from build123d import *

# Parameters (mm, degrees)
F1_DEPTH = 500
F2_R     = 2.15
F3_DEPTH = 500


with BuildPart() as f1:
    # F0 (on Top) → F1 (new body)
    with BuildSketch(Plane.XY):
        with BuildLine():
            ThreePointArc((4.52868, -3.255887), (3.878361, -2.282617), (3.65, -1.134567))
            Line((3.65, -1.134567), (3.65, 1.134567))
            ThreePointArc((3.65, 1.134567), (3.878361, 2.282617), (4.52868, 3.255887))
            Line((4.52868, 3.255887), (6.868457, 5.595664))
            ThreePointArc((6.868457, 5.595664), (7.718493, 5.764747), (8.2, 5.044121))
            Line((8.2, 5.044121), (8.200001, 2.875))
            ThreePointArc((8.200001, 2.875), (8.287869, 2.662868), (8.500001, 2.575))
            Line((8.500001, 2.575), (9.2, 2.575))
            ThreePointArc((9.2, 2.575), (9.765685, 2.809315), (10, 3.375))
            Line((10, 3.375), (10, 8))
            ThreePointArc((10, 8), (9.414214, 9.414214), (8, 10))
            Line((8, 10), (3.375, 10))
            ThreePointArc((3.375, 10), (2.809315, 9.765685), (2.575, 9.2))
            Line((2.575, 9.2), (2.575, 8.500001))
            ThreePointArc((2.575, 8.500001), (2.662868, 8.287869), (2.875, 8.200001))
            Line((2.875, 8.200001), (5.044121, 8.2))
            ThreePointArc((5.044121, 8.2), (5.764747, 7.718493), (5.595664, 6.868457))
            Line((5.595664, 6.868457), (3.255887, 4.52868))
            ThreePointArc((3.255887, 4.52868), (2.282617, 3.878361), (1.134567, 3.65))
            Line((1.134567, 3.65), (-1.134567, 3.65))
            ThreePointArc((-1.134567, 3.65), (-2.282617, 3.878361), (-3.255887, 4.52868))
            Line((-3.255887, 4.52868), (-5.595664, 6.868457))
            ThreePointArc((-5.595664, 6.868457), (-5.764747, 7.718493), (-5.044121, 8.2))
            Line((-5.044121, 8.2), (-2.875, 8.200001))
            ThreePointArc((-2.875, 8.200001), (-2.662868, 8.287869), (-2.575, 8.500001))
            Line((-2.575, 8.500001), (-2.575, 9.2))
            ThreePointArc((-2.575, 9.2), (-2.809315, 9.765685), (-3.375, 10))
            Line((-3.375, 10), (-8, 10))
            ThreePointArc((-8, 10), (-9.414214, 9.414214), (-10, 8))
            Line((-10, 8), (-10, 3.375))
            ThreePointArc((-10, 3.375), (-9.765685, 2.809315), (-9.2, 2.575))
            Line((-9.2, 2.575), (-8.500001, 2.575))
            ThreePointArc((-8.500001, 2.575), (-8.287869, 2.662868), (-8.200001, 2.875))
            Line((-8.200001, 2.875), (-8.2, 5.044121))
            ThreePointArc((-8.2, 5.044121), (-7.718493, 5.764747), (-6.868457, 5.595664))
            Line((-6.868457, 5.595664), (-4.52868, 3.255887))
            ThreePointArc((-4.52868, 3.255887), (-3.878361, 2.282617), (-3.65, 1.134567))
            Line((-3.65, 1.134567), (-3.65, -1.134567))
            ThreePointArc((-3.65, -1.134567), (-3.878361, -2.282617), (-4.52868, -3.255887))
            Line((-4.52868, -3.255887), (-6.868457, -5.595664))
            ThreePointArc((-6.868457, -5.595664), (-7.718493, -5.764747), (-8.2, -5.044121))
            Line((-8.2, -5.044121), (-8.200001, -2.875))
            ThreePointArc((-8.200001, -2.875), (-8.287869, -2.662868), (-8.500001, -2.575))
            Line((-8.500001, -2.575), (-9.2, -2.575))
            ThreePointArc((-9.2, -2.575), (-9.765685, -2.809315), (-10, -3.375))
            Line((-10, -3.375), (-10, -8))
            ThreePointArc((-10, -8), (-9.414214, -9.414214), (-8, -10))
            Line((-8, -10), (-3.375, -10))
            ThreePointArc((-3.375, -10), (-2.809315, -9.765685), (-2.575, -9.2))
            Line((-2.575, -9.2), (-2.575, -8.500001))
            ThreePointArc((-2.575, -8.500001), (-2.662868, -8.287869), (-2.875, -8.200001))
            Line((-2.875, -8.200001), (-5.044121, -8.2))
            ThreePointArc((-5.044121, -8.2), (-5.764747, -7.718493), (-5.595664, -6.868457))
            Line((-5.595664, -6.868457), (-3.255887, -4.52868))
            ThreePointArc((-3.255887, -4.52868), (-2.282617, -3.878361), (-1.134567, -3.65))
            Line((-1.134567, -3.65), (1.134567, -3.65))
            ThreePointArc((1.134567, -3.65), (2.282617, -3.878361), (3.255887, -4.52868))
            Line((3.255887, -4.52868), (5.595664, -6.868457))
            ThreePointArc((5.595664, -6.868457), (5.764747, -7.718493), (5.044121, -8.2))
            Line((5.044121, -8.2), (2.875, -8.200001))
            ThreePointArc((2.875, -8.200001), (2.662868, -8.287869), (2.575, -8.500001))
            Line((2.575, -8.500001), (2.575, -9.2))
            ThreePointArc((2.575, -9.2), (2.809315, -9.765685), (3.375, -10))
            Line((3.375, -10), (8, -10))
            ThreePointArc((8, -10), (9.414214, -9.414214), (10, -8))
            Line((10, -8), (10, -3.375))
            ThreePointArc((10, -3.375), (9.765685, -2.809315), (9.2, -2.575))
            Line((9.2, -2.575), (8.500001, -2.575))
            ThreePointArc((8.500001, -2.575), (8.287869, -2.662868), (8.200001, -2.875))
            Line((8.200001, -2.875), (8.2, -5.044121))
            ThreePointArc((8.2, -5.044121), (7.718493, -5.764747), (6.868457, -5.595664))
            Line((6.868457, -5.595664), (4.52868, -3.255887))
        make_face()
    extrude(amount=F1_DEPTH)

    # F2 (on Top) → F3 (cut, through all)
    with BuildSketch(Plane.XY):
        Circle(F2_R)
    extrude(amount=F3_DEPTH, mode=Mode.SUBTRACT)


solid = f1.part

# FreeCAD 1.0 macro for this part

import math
import FreeCAD as App
import Part
import Sketcher
Q = App.Units.Quantity

doc = App.newDocument("Part")
body = doc.addObject("PartDesign::Body", "Body")

sketch1 = body.newObject("Sketcher::SketchObject", "Sketch")
sketch1.AttachmentSupport = (doc.getObject("XY_Plane"), [""])
sketch1.MapMode = "FlatFace"
sketch1.addGeometry([
    Part.ArcOfCircle(Part.Circle(App.Vector(6.649994, -1.134569, 0), App.Vector(0, 0, 1), 2.999994), math.radians(179.999963), math.radians(225.000059)),
    Part.LineSegment(App.Vector(3.65, -1.134567, 0), App.Vector(3.65, 1.134567, 0)),
    Part.ArcOfCircle(Part.Circle(App.Vector(6.649994, 1.134569, 0), App.Vector(0, 0, 1), 2.999994), math.radians(134.999941), math.radians(180.000037)),
    Part.LineSegment(App.Vector(4.52868, 3.255887, 0), App.Vector(6.868457, 5.595664, 0)),
    Part.ArcOfCircle(Part.Circle(App.Vector(7.42, 5.044121, 0), App.Vector(0, 0, 1), 0.78), math.radians(-0.000009), math.radians(135.000022)),
    Part.LineSegment(App.Vector(8.2, 5.044121, 0), App.Vector(8.200001, 2.875, 0)),
    Part.ArcOfCircle(Part.Circle(App.Vector(8.500001, 2.875, 0), App.Vector(0, 0, 1), 0.3), math.radians(-179.999978), math.radians(-90.000022)),
    Part.LineSegment(App.Vector(8.500001, 2.575, 0), App.Vector(9.2, 2.575, 0)),
    Part.ArcOfCircle(Part.Circle(App.Vector(9.199999, 3.375001, 0), App.Vector(0, 0, 1), 0.800001), math.radians(-89.999896), math.radians(-0.000104)),
    Part.LineSegment(App.Vector(10, 3.375, 0), App.Vector(10, 8, 0)),
    Part.ArcOfCircle(Part.Circle(App.Vector(8.000001, 8.000001, 0), App.Vector(0, 0, 1), 1.999999), math.radians(-0.000043), math.radians(90.000043)),
    Part.LineSegment(App.Vector(8, 10, 0), App.Vector(3.375, 10, 0)),
    Part.ArcOfCircle(Part.Circle(App.Vector(3.375001, 9.199999, 0), App.Vector(0, 0, 1), 0.800001), math.radians(90.000104), math.radians(179.999896)),
    Part.LineSegment(App.Vector(2.575, 9.2, 0), App.Vector(2.575, 8.500001, 0)),
    Part.ArcOfCircle(Part.Circle(App.Vector(2.875, 8.500001, 0), App.Vector(0, 0, 1), 0.3), math.radians(-179.999978), math.radians(-90.000022)),
    Part.LineSegment(App.Vector(2.875, 8.200001, 0), App.Vector(5.044121, 8.2, 0)),
    Part.ArcOfCircle(Part.Circle(App.Vector(5.044121, 7.42, 0), App.Vector(0, 0, 1), 0.78), math.radians(-45.000022), math.radians(90.000009)),
    Part.LineSegment(App.Vector(5.595664, 6.868457, 0), App.Vector(3.255887, 4.52868, 0)),
    Part.ArcOfCircle(Part.Circle(App.Vector(1.134569, 6.649994, 0), App.Vector(0, 0, 1), 2.999994), math.radians(-90.000037), math.radians(-44.999941)),
    Part.LineSegment(App.Vector(1.134567, 3.65, 0), App.Vector(-1.134567, 3.65, 0)),
    Part.ArcOfCircle(Part.Circle(App.Vector(-1.134569, 6.649994, 0), App.Vector(0, 0, 1), 2.999994), math.radians(-135.000059), math.radians(-89.999963)),
    Part.LineSegment(App.Vector(-3.255887, 4.52868, 0), App.Vector(-5.595664, 6.868457, 0)),
    Part.ArcOfCircle(Part.Circle(App.Vector(-5.044121, 7.42, 0), App.Vector(0, 0, 1), 0.78), math.radians(89.999991), math.radians(225.000022)),
    Part.LineSegment(App.Vector(-5.044121, 8.2, 0), App.Vector(-2.875, 8.200001, 0)),
    Part.ArcOfCircle(Part.Circle(App.Vector(-2.875, 8.500001, 0), App.Vector(0, 0, 1), 0.3), math.radians(-89.999978), math.radians(-0.000022)),
    Part.LineSegment(App.Vector(-2.575, 8.500001, 0), App.Vector(-2.575, 9.2, 0)),
    Part.ArcOfCircle(Part.Circle(App.Vector(-3.375001, 9.199999, 0), App.Vector(0, 0, 1), 0.800001), math.radians(0.000104), math.radians(89.999896)),
    Part.LineSegment(App.Vector(-3.375, 10, 0), App.Vector(-8, 10, 0)),
    Part.ArcOfCircle(Part.Circle(App.Vector(-8.000001, 8.000001, 0), App.Vector(0, 0, 1), 1.999999), math.radians(89.999957), math.radians(180.000043)),
    Part.LineSegment(App.Vector(-10, 8, 0), App.Vector(-10, 3.375, 0)),
    Part.ArcOfCircle(Part.Circle(App.Vector(-9.199999, 3.375001, 0), App.Vector(0, 0, 1), 0.800001), math.radians(-179.999896), math.radians(-90.000104)),
    Part.LineSegment(App.Vector(-9.2, 2.575, 0), App.Vector(-8.500001, 2.575, 0)),
    Part.ArcOfCircle(Part.Circle(App.Vector(-8.500001, 2.875, 0), App.Vector(0, 0, 1), 0.3), math.radians(-89.999978), math.radians(-0.000022)),
    Part.LineSegment(App.Vector(-8.200001, 2.875, 0), App.Vector(-8.2, 5.044121, 0)),
    Part.ArcOfCircle(Part.Circle(App.Vector(-7.42, 5.044121, 0), App.Vector(0, 0, 1), 0.78), math.radians(44.999978), math.radians(180.000009)),
    Part.LineSegment(App.Vector(-6.868457, 5.595664, 0), App.Vector(-4.52868, 3.255887, 0)),
    Part.ArcOfCircle(Part.Circle(App.Vector(-6.649994, 1.134569, 0), App.Vector(0, 0, 1), 2.999994), math.radians(-0.000037), math.radians(45.000059)),
    Part.LineSegment(App.Vector(-3.65, 1.134567, 0), App.Vector(-3.65, -1.134567, 0)),
    Part.ArcOfCircle(Part.Circle(App.Vector(-6.649994, -1.134569, 0), App.Vector(0, 0, 1), 2.999994), math.radians(-45.000059), math.radians(0.000037)),
    Part.LineSegment(App.Vector(-4.52868, -3.255887, 0), App.Vector(-6.868457, -5.595664, 0)),
    Part.ArcOfCircle(Part.Circle(App.Vector(-7.42, -5.044121, 0), App.Vector(0, 0, 1), 0.78), math.radians(179.999991), math.radians(315.000022)),
    Part.LineSegment(App.Vector(-8.2, -5.044121, 0), App.Vector(-8.200001, -2.875, 0)),
    Part.ArcOfCircle(Part.Circle(App.Vector(-8.500001, -2.875, 0), App.Vector(0, 0, 1), 0.3), math.radians(0.000022), math.radians(89.999978)),
    Part.LineSegment(App.Vector(-8.500001, -2.575, 0), App.Vector(-9.2, -2.575, 0)),
    Part.ArcOfCircle(Part.Circle(App.Vector(-9.199999, -3.375001, 0), App.Vector(0, 0, 1), 0.800001), math.radians(90.000104), math.radians(179.999896)),
    Part.LineSegment(App.Vector(-10, -3.375, 0), App.Vector(-10, -8, 0)),
    Part.ArcOfCircle(Part.Circle(App.Vector(-8.000001, -8.000001, 0), App.Vector(0, 0, 1), 1.999999), math.radians(179.999957), math.radians(270.000043)),
    Part.LineSegment(App.Vector(-8, -10, 0), App.Vector(-3.375, -10, 0)),
    Part.ArcOfCircle(Part.Circle(App.Vector(-3.375001, -9.199999, 0), App.Vector(0, 0, 1), 0.800001), math.radians(-89.999896), math.radians(-0.000104)),
    Part.LineSegment(App.Vector(-2.575, -9.2, 0), App.Vector(-2.575, -8.500001, 0)),
    Part.ArcOfCircle(Part.Circle(App.Vector(-2.875, -8.500001, 0), App.Vector(0, 0, 1), 0.3), math.radians(0.000022), math.radians(89.999978)),
    Part.LineSegment(App.Vector(-2.875, -8.200001, 0), App.Vector(-5.044121, -8.2, 0)),
    Part.ArcOfCircle(Part.Circle(App.Vector(-5.044121, -7.42, 0), App.Vector(0, 0, 1), 0.78), math.radians(134.999978), math.radians(270.000009)),
    Part.LineSegment(App.Vector(-5.595664, -6.868457, 0), App.Vector(-3.255887, -4.52868, 0)),
    Part.ArcOfCircle(Part.Circle(App.Vector(-1.134569, -6.649994, 0), App.Vector(0, 0, 1), 2.999994), math.radians(89.999963), math.radians(135.000059)),
    Part.LineSegment(App.Vector(-1.134567, -3.65, 0), App.Vector(1.134567, -3.65, 0)),
    Part.ArcOfCircle(Part.Circle(App.Vector(1.134569, -6.649994, 0), App.Vector(0, 0, 1), 2.999994), math.radians(44.999941), math.radians(90.000037)),
    Part.LineSegment(App.Vector(3.255887, -4.52868, 0), App.Vector(5.595664, -6.868457, 0)),
    Part.ArcOfCircle(Part.Circle(App.Vector(5.044121, -7.42, 0), App.Vector(0, 0, 1), 0.78), math.radians(-90.000009), math.radians(45.000022)),
    Part.LineSegment(App.Vector(5.044121, -8.2, 0), App.Vector(2.875, -8.200001, 0)),
    Part.ArcOfCircle(Part.Circle(App.Vector(2.875, -8.500001, 0), App.Vector(0, 0, 1), 0.3), math.radians(90.000022), math.radians(179.999978)),
    Part.LineSegment(App.Vector(2.575, -8.500001, 0), App.Vector(2.575, -9.2, 0)),
    Part.ArcOfCircle(Part.Circle(App.Vector(3.375001, -9.199999, 0), App.Vector(0, 0, 1), 0.800001), math.radians(-179.999896), math.radians(-90.000104)),
    Part.LineSegment(App.Vector(3.375, -10, 0), App.Vector(8, -10, 0)),
    Part.ArcOfCircle(Part.Circle(App.Vector(8.000001, -8.000001, 0), App.Vector(0, 0, 1), 1.999999), math.radians(-90.000043), math.radians(0.000043)),
    Part.LineSegment(App.Vector(10, -8, 0), App.Vector(10, -3.375, 0)),
    Part.ArcOfCircle(Part.Circle(App.Vector(9.199999, -3.375001, 0), App.Vector(0, 0, 1), 0.800001), math.radians(0.000104), math.radians(89.999896)),
    Part.LineSegment(App.Vector(9.2, -2.575, 0), App.Vector(8.500001, -2.575, 0)),
    Part.ArcOfCircle(Part.Circle(App.Vector(8.500001, -2.875, 0), App.Vector(0, 0, 1), 0.3), math.radians(90.000022), math.radians(179.999978)),
    Part.LineSegment(App.Vector(8.200001, -2.875, 0), App.Vector(8.2, -5.044121, 0)),
    Part.ArcOfCircle(Part.Circle(App.Vector(7.42, -5.044121, 0), App.Vector(0, 0, 1), 0.78), math.radians(-135.000022), math.radians(0.000009)),
    Part.LineSegment(App.Vector(6.868457, -5.595664, 0), App.Vector(4.52868, -3.255887, 0)),
], False)
sketch1.addConstraint([
    Sketcher.Constraint("Tangent", 0, 1, 1, 1),
    Sketcher.Constraint("Tangent", 1, 2, 2, 2),
    Sketcher.Constraint("Tangent", 2, 1, 3, 1),
    Sketcher.Constraint("Tangent", 3, 2, 4, 2),
    Sketcher.Constraint("Tangent", 4, 1, 5, 1),
    Sketcher.Constraint("Tangent", 5, 2, 6, 1),
    Sketcher.Constraint("Tangent", 6, 2, 7, 1),
    Sketcher.Constraint("Tangent", 7, 2, 8, 1),
    Sketcher.Constraint("Tangent", 8, 2, 9, 1),
    Sketcher.Constraint("Tangent", 9, 2, 10, 1),
    Sketcher.Constraint("Tangent", 10, 2, 11, 1),
    Sketcher.Constraint("Tangent", 11, 2, 12, 1),
    Sketcher.Constraint("Tangent", 12, 2, 13, 1),
    Sketcher.Constraint("Tangent", 13, 2, 14, 1),
    Sketcher.Constraint("Tangent", 14, 2, 15, 1),
    Sketcher.Constraint("Tangent", 15, 2, 16, 2),
    Sketcher.Constraint("Tangent", 16, 1, 17, 1),
    Sketcher.Constraint("Tangent", 17, 2, 18, 2),
    Sketcher.Constraint("Tangent", 18, 1, 19, 1),
    Sketcher.Constraint("Tangent", 19, 2, 20, 2),
    Sketcher.Constraint("Tangent", 20, 1, 21, 1),
    Sketcher.Constraint("Tangent", 21, 2, 22, 2),
    Sketcher.Constraint("Tangent", 22, 1, 23, 1),
    Sketcher.Constraint("Tangent", 23, 2, 24, 1),
    Sketcher.Constraint("Tangent", 24, 2, 25, 1),
    Sketcher.Constraint("Tangent", 25, 2, 26, 1),
    Sketcher.Constraint("Tangent", 26, 2, 27, 1),
    Sketcher.Constraint("Tangent", 27, 2, 28, 1),
    Sketcher.Constraint("Tangent", 28, 2, 29, 1),
    Sketcher.Constraint("Tangent", 29, 2, 30, 1),
    Sketcher.Constraint("Tangent", 30, 2, 31, 1),
    Sketcher.Constraint("Tangent", 31, 2, 32, 1),
    Sketcher.Constraint("Tangent", 32, 2, 33, 1),
    Sketcher.Constraint("Tangent", 33, 2, 34, 2),
    Sketcher.Constraint("Tangent", 34, 1, 35, 1),
    Sketcher.Constraint("Tangent", 35, 2, 36, 2),
    Sketcher.Constraint("Tangent", 36, 1, 37, 1),
    Sketcher.Constraint("Tangent", 37, 2, 38, 2),
    Sketcher.Constraint("Tangent", 38, 1, 39, 1),
    Sketcher.Constraint("Tangent", 39, 2, 40, 2),
    Sketcher.Constraint("Tangent", 40, 1, 41, 1),
    Sketcher.Constraint("Tangent", 41, 2, 42, 1),
    Sketcher.Constraint("Tangent", 42, 2, 43, 1),
    Sketcher.Constraint("Tangent", 43, 2, 44, 1),
    Sketcher.Constraint("Tangent", 44, 2, 45, 1),
    Sketcher.Constraint("Tangent", 45, 2, 46, 1),
    Sketcher.Constraint("Tangent", 46, 2, 47, 1),
    Sketcher.Constraint("Tangent", 47, 2, 48, 1),
    Sketcher.Constraint("Tangent", 48, 2, 49, 1),
    Sketcher.Constraint("Tangent", 49, 2, 50, 1),
    Sketcher.Constraint("Tangent", 50, 2, 51, 1),
    Sketcher.Constraint("Tangent", 51, 2, 52, 2),
    Sketcher.Constraint("Tangent", 52, 1, 53, 1),
    Sketcher.Constraint("Tangent", 53, 2, 54, 2),
    Sketcher.Constraint("Tangent", 54, 1, 55, 1),
    Sketcher.Constraint("Tangent", 55, 2, 56, 2),
    Sketcher.Constraint("Tangent", 56, 1, 57, 1),
    Sketcher.Constraint("Tangent", 57, 2, 58, 2),
    Sketcher.Constraint("Tangent", 58, 1, 59, 1),
    Sketcher.Constraint("Tangent", 59, 2, 60, 1),
    Sketcher.Constraint("Tangent", 60, 2, 61, 1),
    Sketcher.Constraint("Tangent", 61, 2, 62, 1),
    Sketcher.Constraint("Tangent", 62, 2, 63, 1),
    Sketcher.Constraint("Tangent", 63, 2, 64, 1),
    Sketcher.Constraint("Tangent", 64, 2, 65, 1),
    Sketcher.Constraint("Tangent", 65, 2, 66, 1),
    Sketcher.Constraint("Tangent", 66, 2, 67, 1),
    Sketcher.Constraint("Tangent", 67, 2, 68, 1),
    Sketcher.Constraint("Tangent", 68, 2, 69, 1),
    Sketcher.Constraint("Tangent", 69, 2, 70, 2),
    Sketcher.Constraint("Tangent", 70, 1, 71, 1),
    Sketcher.Constraint("Tangent", 71, 2, 0, 2),
    Sketcher.Constraint("Vertical", 1),
    Sketcher.Constraint("Vertical", 5),
    Sketcher.Constraint("Horizontal", 7),
    Sketcher.Constraint("Vertical", 9),
    Sketcher.Constraint("Horizontal", 11),
    Sketcher.Constraint("Vertical", 13),
    Sketcher.Constraint("Horizontal", 15),
    Sketcher.Constraint("Horizontal", 19),
    Sketcher.Constraint("Horizontal", 23),
    Sketcher.Constraint("Vertical", 25),
    Sketcher.Constraint("Horizontal", 27),
    Sketcher.Constraint("Vertical", 29),
    Sketcher.Constraint("Horizontal", 31),
    Sketcher.Constraint("Vertical", 33),
    Sketcher.Constraint("Vertical", 37),
    Sketcher.Constraint("Vertical", 41),
    Sketcher.Constraint("Horizontal", 43),
    Sketcher.Constraint("Vertical", 45),
    Sketcher.Constraint("Horizontal", 47),
    Sketcher.Constraint("Vertical", 49),
    Sketcher.Constraint("Horizontal", 51),
    Sketcher.Constraint("Horizontal", 55),
    Sketcher.Constraint("Horizontal", 59),
    Sketcher.Constraint("Vertical", 61),
    Sketcher.Constraint("Horizontal", 63),
    Sketcher.Constraint("Vertical", 65),
    Sketcher.Constraint("Horizontal", 67),
    Sketcher.Constraint("Vertical", 69),
    Sketcher.Constraint("Equal", 0, 2),
    Sketcher.Constraint("Equal", 8, 12),
    Sketcher.Constraint("Equal", 6, 14),
    Sketcher.Constraint("Equal", 4, 16),
    Sketcher.Constraint("Equal", 2, 18),
    Sketcher.Constraint("Equal", 18, 20),
    Sketcher.Constraint("Equal", 16, 22),
    Sketcher.Constraint("Equal", 14, 24),
    Sketcher.Constraint("Equal", 12, 26),
    Sketcher.Constraint("Equal", 10, 28),
    Sketcher.Constraint("Equal", 26, 30),
    Sketcher.Constraint("Equal", 24, 32),
    Sketcher.Constraint("Equal", 22, 34),
    Sketcher.Constraint("Equal", 20, 36),
    Sketcher.Constraint("Equal", 36, 38),
    Sketcher.Constraint("Equal", 34, 40),
    Sketcher.Constraint("Equal", 32, 42),
    Sketcher.Constraint("Equal", 30, 44),
    Sketcher.Constraint("Equal", 28, 46),
    Sketcher.Constraint("Equal", 44, 48),
    Sketcher.Constraint("Equal", 42, 50),
    Sketcher.Constraint("Equal", 40, 52),
    Sketcher.Constraint("Equal", 38, 54),
    Sketcher.Constraint("Equal", 54, 56),
    Sketcher.Constraint("Equal", 52, 58),
    Sketcher.Constraint("Equal", 50, 60),
    Sketcher.Constraint("Equal", 48, 62),
    Sketcher.Constraint("Equal", 46, 64),
    Sketcher.Constraint("Equal", 62, 66),
    Sketcher.Constraint("Equal", 60, 68),
    Sketcher.Constraint("Equal", 58, 70),
    Sketcher.Constraint("Symmetric", 0, 3, 36, 3, -1, 1),
    Sketcher.Constraint("Symmetric", 4, 3, 40, 3, -1, 1),
    Sketcher.Constraint("Symmetric", 8, 3, 44, 3, -1, 1),
    Sketcher.Constraint("Symmetric", 12, 3, 48, 3, -1, 1),
    Sketcher.Constraint("Symmetric", 16, 3, 52, 3, -1, 1),
    Sketcher.Constraint("Symmetric", 18, 3, 54, 3, -1, 1),
    Sketcher.Constraint("Symmetric", 22, 3, 58, 3, -1, 1),
    Sketcher.Constraint("Symmetric", 26, 3, 62, 3, -1, 1),
    Sketcher.Constraint("Symmetric", 30, 3, 66, 3, -1, 1),
    Sketcher.Constraint("Symmetric", 34, 3, 70, 3, -1, 1),
    Sketcher.Constraint("Symmetric", 16, 3, 22, 3, -2),
    Sketcher.Constraint("Symmetric", 12, 3, 26, 3, -2),
    Sketcher.Constraint("Symmetric", 8, 3, 30, 3, -2),
    Sketcher.Constraint("Symmetric", 4, 3, 34, 3, -2),
    Sketcher.Constraint("Parallel", 3, 17),
    Sketcher.Constraint("Perpendicular", 17, 21),
    Sketcher.Constraint("Parallel", 21, 35),
    Sketcher.Constraint("Perpendicular", 35, 39),
    Sketcher.Constraint("Perpendicular", 53, 57),
    Sketcher.Constraint("Horizontal", 2, 3, 36, 3),
    Sketcher.Constraint("Equal", 55, 1),
    Sketcher.Constraint("Equal", 59, 5),
    Sketcher.Constraint("Equal", 63, 9),
    Sketcher.Constraint("Equal", 67, 13),
    Sketcher.Constraint("Equal", 3, 17),
    Sketcher.Constraint("Radius", 10, Q("1.999999 mm")),
    Sketcher.Constraint("Radius", 6, Q("0.3 mm")),
    Sketcher.Constraint("Radius", 8, Q("0.800001 mm")),
    Sketcher.Constraint("Radius", 4, Q("0.78 mm")),
    Sketcher.Constraint("DistanceX", 7, 1, 7, 2, Q("0.699999 mm")),
    Sketcher.Constraint("DistanceX", -1, 1, 10, 3, Q("8.000001 mm")),
    Sketcher.Constraint("DistanceX", 11, 2, 11, 1, Q("4.625 mm")),
    Sketcher.Constraint("DistanceX", -1, 1, 0, 1, Q("3.65 mm")),
    Sketcher.Constraint("Radius", 0, Q("2.999994 mm")),
    Sketcher.Constraint("DistanceX", 15, 1, 15, 2, Q("2.169121 mm")),
])
pad1 = body.newObject("PartDesign::Pad", "Pad")
pad1.Profile = sketch1
pad1.Length = 500

sketch2 = body.newObject("Sketcher::SketchObject", "Sketch001")
sketch2.AttachmentSupport = (doc.getObject("XY_Plane"), [""])
sketch2.MapMode = "FlatFace"
sketch2.addGeometry(Part.Circle(App.Vector(0, 0, 0), App.Vector(0, 0, 1), 2.15), False)
sketch2.addConstraint([
    Sketcher.Constraint("Coincident", 0, 3, -1, 1),
    Sketcher.Constraint("Diameter", 0, Q("4.3 mm")),
])
pocket1 = body.newObject("PartDesign::Pocket", "Pocket")
pocket1.Profile = sketch2
pocket1.Type = "ThroughAll"
pocket1.Reversed = True

doc.recompute()
